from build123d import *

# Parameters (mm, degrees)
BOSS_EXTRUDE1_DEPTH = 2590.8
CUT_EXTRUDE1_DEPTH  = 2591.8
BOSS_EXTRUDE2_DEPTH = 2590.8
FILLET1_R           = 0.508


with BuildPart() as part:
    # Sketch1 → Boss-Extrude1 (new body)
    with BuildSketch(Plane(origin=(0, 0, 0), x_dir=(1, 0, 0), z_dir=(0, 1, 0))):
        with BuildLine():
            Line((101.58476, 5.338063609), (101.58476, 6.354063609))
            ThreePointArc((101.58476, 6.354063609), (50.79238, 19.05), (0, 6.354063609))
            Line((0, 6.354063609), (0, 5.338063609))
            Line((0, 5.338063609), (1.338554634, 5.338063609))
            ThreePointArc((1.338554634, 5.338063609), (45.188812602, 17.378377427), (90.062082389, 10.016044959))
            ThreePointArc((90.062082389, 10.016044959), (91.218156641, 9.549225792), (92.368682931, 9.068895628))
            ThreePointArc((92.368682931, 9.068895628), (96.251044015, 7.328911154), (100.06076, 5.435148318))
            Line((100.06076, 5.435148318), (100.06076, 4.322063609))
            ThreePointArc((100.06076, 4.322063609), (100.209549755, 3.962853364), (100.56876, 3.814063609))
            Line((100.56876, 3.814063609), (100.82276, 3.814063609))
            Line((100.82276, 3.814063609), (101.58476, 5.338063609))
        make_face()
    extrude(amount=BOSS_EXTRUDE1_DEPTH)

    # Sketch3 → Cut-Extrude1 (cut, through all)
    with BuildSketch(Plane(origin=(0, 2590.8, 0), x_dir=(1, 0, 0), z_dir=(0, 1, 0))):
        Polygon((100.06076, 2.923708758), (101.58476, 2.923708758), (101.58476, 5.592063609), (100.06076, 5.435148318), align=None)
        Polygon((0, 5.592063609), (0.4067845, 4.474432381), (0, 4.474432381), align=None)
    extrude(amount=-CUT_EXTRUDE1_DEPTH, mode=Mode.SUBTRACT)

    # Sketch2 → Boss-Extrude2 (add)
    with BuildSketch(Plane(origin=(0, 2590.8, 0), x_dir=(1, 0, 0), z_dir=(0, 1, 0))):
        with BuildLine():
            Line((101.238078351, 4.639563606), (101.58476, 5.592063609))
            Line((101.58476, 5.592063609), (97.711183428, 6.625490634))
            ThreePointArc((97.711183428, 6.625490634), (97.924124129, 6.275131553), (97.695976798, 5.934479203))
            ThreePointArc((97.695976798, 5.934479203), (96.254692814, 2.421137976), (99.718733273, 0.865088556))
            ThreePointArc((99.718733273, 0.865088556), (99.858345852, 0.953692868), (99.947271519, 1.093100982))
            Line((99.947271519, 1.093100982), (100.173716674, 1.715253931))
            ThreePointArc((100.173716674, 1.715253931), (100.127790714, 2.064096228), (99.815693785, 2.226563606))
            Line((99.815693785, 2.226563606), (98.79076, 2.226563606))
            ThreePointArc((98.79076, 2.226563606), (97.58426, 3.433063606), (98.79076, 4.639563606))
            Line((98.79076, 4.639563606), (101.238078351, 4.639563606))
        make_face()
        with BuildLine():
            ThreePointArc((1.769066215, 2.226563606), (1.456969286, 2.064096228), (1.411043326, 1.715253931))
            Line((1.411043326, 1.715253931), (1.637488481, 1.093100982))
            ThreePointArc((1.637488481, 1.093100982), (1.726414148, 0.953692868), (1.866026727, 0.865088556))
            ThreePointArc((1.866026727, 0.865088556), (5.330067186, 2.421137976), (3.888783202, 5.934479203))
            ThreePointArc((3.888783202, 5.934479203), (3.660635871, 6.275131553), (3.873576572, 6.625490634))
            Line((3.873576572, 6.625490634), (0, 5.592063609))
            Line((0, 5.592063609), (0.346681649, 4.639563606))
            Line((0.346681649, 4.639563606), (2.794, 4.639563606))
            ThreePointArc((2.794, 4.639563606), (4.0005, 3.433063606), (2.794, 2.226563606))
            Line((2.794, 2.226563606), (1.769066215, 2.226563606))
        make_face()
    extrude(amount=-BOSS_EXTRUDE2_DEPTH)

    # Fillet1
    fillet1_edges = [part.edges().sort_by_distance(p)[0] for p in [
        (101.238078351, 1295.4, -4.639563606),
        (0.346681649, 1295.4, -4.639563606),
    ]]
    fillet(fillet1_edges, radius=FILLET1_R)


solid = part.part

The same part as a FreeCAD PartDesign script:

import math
import FreeCAD as App
import Part
import Sketcher
Q = App.Units.Quantity


def edges_at(feature, points):
    """Names of the edges that pass closest to the given points."""
    edges = feature.Shape.Edges
    near = lambda p: min(range(len(edges)), key=lambda i: edges[i].distToShape(Part.Vertex(*p))[0])
    return sorted({f"Edge{near(p) + 1}" for p in points})

doc = App.newDocument("Part")
body = doc.addObject("PartDesign::Body", "Body")

sketch1 = body.newObject("Sketcher::SketchObject", "Sketch")
sketch1.AttachmentSupport = (doc.getObject("XZ_Plane"), [""])
sketch1.MapMode = "FlatFace"
sketch1.addGeometry([
    Part.LineSegment(App.Vector(101.58, -5.34, 0), App.Vector(101.58, -6.35, 0)),
    Part.ArcOfCircle(Part.Circle(App.Vector(50.79, 88.9, 0), App.Vector(0, 0, 1), 107.95), math.radians(-118), math.radians(-62)),
    Part.LineSegment(App.Vector(0, -6.35, 0), App.Vector(0, -5.34, 0)),
    Part.LineSegment(App.Vector(0, -5.34, 0), App.Vector(1.34, -5.34, 0)),
    Part.ArcOfCircle(Part.Circle(App.Vector(50.79, 88.9, 0), App.Vector(0, 0, 1), 106.43), math.radians(-118), math.radians(-68)),
    Part.ArcOfCircle(Part.Circle(App.Vector(50.79, 88.9, 0), App.Vector(0, 0, 1), 106.43), math.radians(-68.35), math.radians(-67)),
    Part.ArcOfCircle(Part.Circle(App.Vector(50.79, 88.9, 0), App.Vector(0, 0, 1), 106.43), math.radians(-67), math.radians(-62.42)),
    Part.LineSegment(App.Vector(100.06, -5.44, 0), App.Vector(100.06, -4.32, 0)),
    Part.ArcOfCircle(Part.Circle(App.Vector(100.57, -4.32, 0), App.Vector(0, 0, 1), 0.51), math.radians(90), math.radians(180)),
    Part.LineSegment(App.Vector(100.57, -3.81, 0), App.Vector(100.82, -3.81, 0)),
    Part.LineSegment(App.Vector(100.82, -3.81, 0), App.Vector(101.58, -5.34, 0)),
], False)
sketch1.addConstraint([
    Sketcher.Constraint("Coincident", 0, 2, 1, 2),
    Sketcher.Constraint("Coincident", 1, 1, 2, 1),
    Sketcher.Constraint("Coincident", 2, 2, 3, 1),
    Sketcher.Constraint("Coincident", 3, 2, 4, 1),
    Sketcher.Constraint("Tangent", 4, 2, 5, 1),
    Sketcher.Constraint("Tangent", 5, 2, 6, 1),
    Sketcher.Constraint("Coincident", 6, 2, 7, 1),
    Sketcher.Constraint("Tangent", 7, 2, 8, 2),
    Sketcher.Constraint("Tangent", 8, 1, 9, 1),
    Sketcher.Constraint("Coincident", 9, 2, 10, 1),
    Sketcher.Constraint("Coincident", 10, 2, 0, 1),
    Sketcher.Constraint("Vertical", 0),
    Sketcher.Constraint("Vertical", 2),
    Sketcher.Constraint("Horizontal", 3),
    Sketcher.Constraint("Vertical", 7),
    Sketcher.Constraint("Horizontal", 9),
    Sketcher.Constraint("Coincident", 4, 3, 1, 3),
    Sketcher.Constraint("Coincident", 6, 3, 1, 3),
    Sketcher.Constraint("PointOnObject", 1, 1, -2),
    Sketcher.Constraint("Horizontal", 0, 2, 1, 1),
    Sketcher.Constraint("Horizontal", 3, 2, 10, 2),
    Sketcher.Constraint("Radius", 1, Q("4.25 in")),
    Sketcher.Constraint("Radius", 4, Q("4.19 in")),
    Sketcher.Constraint("Radius", 8, Q("0.02 in")),
    Sketcher.Constraint("DistanceX", 9, 1, 9, 2, Q("0.01 in")),
    Sketcher.Constraint("DistanceY", 0, 2, 0, 1, Q("0.04 in")),
    Sketcher.Constraint("DistanceY", -1, 1, 1, 3, Q("3.5 in")),
    Sketcher.Constraint("DistanceY", 0, 2, 8, 1, Q("0.1 in")),
    Sketcher.Constraint("DistanceX", 8, 3, 0, 2, Q("0.04 in")),
    Sketcher.Constraint("DistanceX", -1, 1, 1, 3, Q("1.9997 in")),
    Sketcher.Constraint("DistanceX", 4, 2, 5, 2, Q("2.306601 mm")),
    Sketcher.Constraint("DistanceY", 4, 2, 8, 3, Q("5.693981 mm")),
])
pad1 = body.newObject("PartDesign::Pad", "Pad")
pad1.Profile = sketch1
pad1.Length = Q("102 in")
pad1.Reversed = True

sketch2 = body.newObject("Sketcher::SketchObject", "Sketch001")
sketch2.AttachmentSupport = (doc.getObject("XZ_Plane"), [""])
sketch2.MapMode = "FlatFace"
sketch2.AttachmentOffset = App.Placement(App.Vector(0, 0, -102 * 25.4), App.Rotation())
sketch2.addGeometry([
    Part.LineSegment(App.Vector(100.06, -2.92, 0), App.Vector(101.58, -2.92, 0)),
    Part.LineSegment(App.Vector(101.58, -2.92, 0), App.Vector(101.58, -5.59, 0)),
    Part.LineSegment(App.Vector(101.58, -5.59, 0), App.Vector(100.06, -5.44, 0)),
    Part.LineSegment(App.Vector(100.06, -5.44, 0), App.Vector(100.06, -2.92, 0)),
    Part.LineSegment(App.Vector(0.41, -4.47, 0), App.Vector(0, -5.59, 0)),
    Part.LineSegment(App.Vector(0, -5.59, 0), App.Vector(0, -4.47, 0)),
    Part.LineSegment(App.Vector(0, -4.47, 0), App.Vector(0.41, -4.47, 0)),
], False)
sketch2.addConstraint([
    Sketcher.Constraint("Coincident", 0, 2, 1, 1),
    Sketcher.Constraint("Coincident", 1, 2, 2, 1),
    Sketcher.Constraint("Coincident", 2, 2, 3, 1),
    Sketcher.Constraint("Coincident", 3, 2, 0, 1),
    Sketcher.Constraint("Coincident", 4, 2, 5, 1),
    Sketcher.Constraint("Coincident", 5, 2, 6, 1),
    Sketcher.Constraint("Coincident", 6, 2, 4, 1),
    Sketcher.Constraint("Horizontal", 0),
    Sketcher.Constraint("Vertical", 1),
    Sketcher.Constraint("Vertical", 3),
    Sketcher.Constraint("Vertical", 5),
    Sketcher.Constraint("Horizontal", 6),
    Sketcher.Constraint("PointOnObject", 4, 2, -2),
    Sketcher.Constraint("Horizontal", 1, 2, 4, 2),
    Sketcher.Constraint("Angle", 4, Q("-110 deg")),
    Sketcher.Constraint("DistanceX", 0, 1, 0, 2, Q("0.06 in")),
    Sketcher.Constraint("DistanceX", -1, 1, 0, 2, Q("3.9994 in")),
    Sketcher.Constraint("DistanceY", 3, 1, 3, 2, Q("2.51144 mm")),
    Sketcher.Constraint("DistanceY", 5, 1, 5, 2, Q("1.117631 mm")),
    Sketcher.Constraint("DistanceY", 1, 2, 1, 1, Q("2.668355 mm")),
    Sketcher.Constraint("DistanceY", 0, 2, -1, 1, Q("2.923709 mm")),
])
pocket1 = body.newObject("PartDesign::Pocket", "Pocket")
pocket1.Profile = sketch2
pocket1.Type = "ThroughAll"
pocket1.Reversed = True

sketch3 = body.newObject("Sketcher::SketchObject", "Sketch002")
sketch3.AttachmentSupport = (doc.getObject("XZ_Plane"), [""])
sketch3.MapMode = "FlatFace"
sketch3.AttachmentOffset = App.Placement(App.Vector(0, 0, -102 * 25.4), App.Rotation())
sketch3.addGeometry([
    Part.LineSegment(App.Vector(101.24, -4.64, 0), App.Vector(101.58, -5.59, 0)),
    Part.LineSegment(App.Vector(101.58, -5.59, 0), App.Vector(97.71, -6.63, 0)),
    Part.ArcOfCircle(Part.Circle(App.Vector(97.54, -6.28, 0), App.Vector(0, 0, 1), 0.38), math.radians(-64), math.radians(66)),
    Part.ArcOfCircle(Part.Circle(App.Vector(98.79, -3.43, 0), App.Vector(0, 0, 1), 2.73), math.radians(70), math.radians(246)),
    Part.ArcOfCircle(Part.Circle(App.Vector(99.59, -1.22, 0), App.Vector(0, 0, 1), 0.38), math.radians(20), math.radians(70)),
    Part.LineSegment(App.Vector(99.95, -1.09, 0), App.Vector(100.17, -1.72, 0)),
    Part.ArcOfCircle(Part.Circle(App.Vector(99.82, -1.85, 0), App.Vector(0, 0, 1), 0.38), math.radians(-90), math.radians(20)),
    Part.LineSegment(App.Vector(99.82, -2.23, 0), App.Vector(98.79, -2.23, 0)),
    Part.ArcOfCircle(Part.Circle(App.Vector(98.79, -3.43, 0), App.Vector(0, 0, 1), 1.21), math.radians(90), math.radians(270)),
    Part.LineSegment(App.Vector(98.79, -4.64, 0), App.Vector(101.24, -4.64, 0)),
    Part.ArcOfCircle(Part.Circle(App.Vector(1.77, -1.85, 0), App.Vector(0, 0, 1), 0.38), math.radians(160), math.radians(270)),
    Part.LineSegment(App.Vector(1.41, -1.72, 0), App.Vector(1.64, -1.09, 0)),
    Part.ArcOfCircle(Part.Circle(App.Vector(2, -1.22, 0), App.Vector(0, 0, 1), 0.38), math.radians(110), math.radians(160)),
    Part.ArcOfCircle(Part.Circle(App.Vector(2.79, -3.43, 0), App.Vector(0, 0, 1), 2.73), math.radians(-66), math.radians(110)),
    Part.ArcOfCircle(Part.Circle(App.Vector(4.04, -6.28, 0), App.Vector(0, 0, 1), 0.38), math.radians(114), math.radians(244)),
    Part.LineSegment(App.Vector(3.87, -6.63, 0), App.Vector(0, -5.59, 0)),
    Part.LineSegment(App.Vector(0, -5.59, 0), App.Vector(0.35, -4.64, 0)),
    Part.LineSegment(App.Vector(0.35, -4.64, 0), App.Vector(2.79, -4.64, 0)),
    Part.ArcOfCircle(Part.Circle(App.Vector(2.79, -3.43, 0), App.Vector(0, 0, 1), 1.21), math.radians(-90), math.radians(90)),
    Part.LineSegment(App.Vector(2.79, -2.23, 0), App.Vector(1.77, -2.23, 0)),
], False)
sketch3.addConstraint([
    Sketcher.Constraint("Coincident", 0, 2, 1, 1),
    Sketcher.Constraint("Coincident", 1, 2, 2, 1),
    Sketcher.Constraint("Tangent", 2, 2, 3, 2),
    Sketcher.Constraint("Tangent", 3, 1, 4, 2),
    Sketcher.Constraint("Tangent", 4, 1, 5, 1),
    Sketcher.Constraint("Tangent", 5, 2, 6, 2),
    Sketcher.Constraint("Tangent", 6, 1, 7, 1),
    Sketcher.Constraint("Tangent", 7, 2, 8, 1),
    Sketcher.Constraint("Tangent", 8, 2, 9, 1),
    Sketcher.Constraint("Coincident", 9, 2, 0, 1),
    Sketcher.Constraint("Tangent", 10, 1, 11, 1),
    Sketcher.Constraint("Tangent", 11, 2, 12, 2),
    Sketcher.Constraint("Tangent", 12, 1, 13, 2),
    Sketcher.Constraint("Tangent", 13, 1, 14, 1),
    Sketcher.Constraint("Coincident", 14, 2, 15, 1),
    Sketcher.Constraint("Coincident", 15, 2, 16, 1),
    Sketcher.Constraint("Coincident", 16, 2, 17, 1),
    Sketcher.Constraint("Tangent", 17, 2, 18, 1),
    Sketcher.Constraint("Tangent", 18, 2, 19, 1),
    Sketcher.Constraint("Tangent", 19, 2, 10, 2),
    Sketcher.Constraint("Horizontal", 7),
    Sketcher.Constraint("Horizontal", 9),
    Sketcher.Constraint("Horizontal", 17),
    Sketcher.Constraint("Horizontal", 19),
    Sketcher.Constraint("Coincident", 8, 3, 3, 3),
    Sketcher.Constraint("Coincident", 18, 3, 13, 3),
    Sketcher.Constraint("Equal", 2, 4),
    Sketcher.Constraint("Equal", 4, 6),
    Sketcher.Constraint("Equal", 6, 10),
    Sketcher.Constraint("Equal", 10, 12),
    Sketcher.Constraint("Equal", 3, 13),
    Sketcher.Constraint("Equal", 12, 14),
    Sketcher.Constraint("Equal", 8, 18),
    Sketcher.Constraint("PointOnObject", 15, 2, -2),
    Sketcher.Constraint("Parallel", 0, 5),
    Sketcher.Constraint("Parallel", 11, 16),
    Sketcher.Constraint("Horizontal", 6, 3, 10, 3),
    Sketcher.Constraint("Horizontal", 4, 3, 12, 3),
    Sketcher.Constraint("Horizontal", 2, 3, 14, 3),
    Sketcher.Constraint("Horizontal", 5, 2, 10, 1),
    Sketcher.Constraint("Horizontal", 1, 2, 14, 2),
    Sketcher.Constraint("Horizontal", 0, 2, 15, 2),
    Sketcher.Constraint("Equal", 9, 17),
    Sketcher.Constraint("Angle", 0, Q("-70 deg")),
    Sketcher.Constraint("Radius", 2, Q("0.015 in")),
    Sketcher.Constraint("Radius", 3, Q("0.1075 in")),
    Sketcher.Constraint("Radius", 8, Q("0.0475 in")),
    Sketcher.Constraint("DistanceX", -1, 1, 13, 3, Q("0.11 in")),
    Sketcher.Constraint("DistanceY", 0, 2, 8, 3, Q("0.085 in")),
    Sketcher.Constraint("DistanceX", -1, 1, 3, 3, Q("3.8894 in")),
    Sketcher.Constraint("DistanceY", 4, 1, -1, 1, Q("1.093101 mm")),
    Sketcher.Constraint("DistanceX", 10, 1, 14, 3, Q("2.6305 mm")),
    Sketcher.Constraint("Distance", 1, Q("4.009061 mm")),
    Sketcher.Constraint("Distance", 5, Q("0.662081 mm")),
])
pad2 = body.newObject("PartDesign::Pad", "Pad001")
pad2.Profile = sketch3
pad2.Length = Q("102 in")
doc.recompute()

fillet = body.newObject("PartDesign::Fillet", "Fillet")
fillet.Base = (pad2, edges_at(pad2, [(101.238, 1295.4, -4.64), (0.347, 1295.4, -4.64)]))
fillet.Radius = Q("0.02 in")

doc.recompute()
